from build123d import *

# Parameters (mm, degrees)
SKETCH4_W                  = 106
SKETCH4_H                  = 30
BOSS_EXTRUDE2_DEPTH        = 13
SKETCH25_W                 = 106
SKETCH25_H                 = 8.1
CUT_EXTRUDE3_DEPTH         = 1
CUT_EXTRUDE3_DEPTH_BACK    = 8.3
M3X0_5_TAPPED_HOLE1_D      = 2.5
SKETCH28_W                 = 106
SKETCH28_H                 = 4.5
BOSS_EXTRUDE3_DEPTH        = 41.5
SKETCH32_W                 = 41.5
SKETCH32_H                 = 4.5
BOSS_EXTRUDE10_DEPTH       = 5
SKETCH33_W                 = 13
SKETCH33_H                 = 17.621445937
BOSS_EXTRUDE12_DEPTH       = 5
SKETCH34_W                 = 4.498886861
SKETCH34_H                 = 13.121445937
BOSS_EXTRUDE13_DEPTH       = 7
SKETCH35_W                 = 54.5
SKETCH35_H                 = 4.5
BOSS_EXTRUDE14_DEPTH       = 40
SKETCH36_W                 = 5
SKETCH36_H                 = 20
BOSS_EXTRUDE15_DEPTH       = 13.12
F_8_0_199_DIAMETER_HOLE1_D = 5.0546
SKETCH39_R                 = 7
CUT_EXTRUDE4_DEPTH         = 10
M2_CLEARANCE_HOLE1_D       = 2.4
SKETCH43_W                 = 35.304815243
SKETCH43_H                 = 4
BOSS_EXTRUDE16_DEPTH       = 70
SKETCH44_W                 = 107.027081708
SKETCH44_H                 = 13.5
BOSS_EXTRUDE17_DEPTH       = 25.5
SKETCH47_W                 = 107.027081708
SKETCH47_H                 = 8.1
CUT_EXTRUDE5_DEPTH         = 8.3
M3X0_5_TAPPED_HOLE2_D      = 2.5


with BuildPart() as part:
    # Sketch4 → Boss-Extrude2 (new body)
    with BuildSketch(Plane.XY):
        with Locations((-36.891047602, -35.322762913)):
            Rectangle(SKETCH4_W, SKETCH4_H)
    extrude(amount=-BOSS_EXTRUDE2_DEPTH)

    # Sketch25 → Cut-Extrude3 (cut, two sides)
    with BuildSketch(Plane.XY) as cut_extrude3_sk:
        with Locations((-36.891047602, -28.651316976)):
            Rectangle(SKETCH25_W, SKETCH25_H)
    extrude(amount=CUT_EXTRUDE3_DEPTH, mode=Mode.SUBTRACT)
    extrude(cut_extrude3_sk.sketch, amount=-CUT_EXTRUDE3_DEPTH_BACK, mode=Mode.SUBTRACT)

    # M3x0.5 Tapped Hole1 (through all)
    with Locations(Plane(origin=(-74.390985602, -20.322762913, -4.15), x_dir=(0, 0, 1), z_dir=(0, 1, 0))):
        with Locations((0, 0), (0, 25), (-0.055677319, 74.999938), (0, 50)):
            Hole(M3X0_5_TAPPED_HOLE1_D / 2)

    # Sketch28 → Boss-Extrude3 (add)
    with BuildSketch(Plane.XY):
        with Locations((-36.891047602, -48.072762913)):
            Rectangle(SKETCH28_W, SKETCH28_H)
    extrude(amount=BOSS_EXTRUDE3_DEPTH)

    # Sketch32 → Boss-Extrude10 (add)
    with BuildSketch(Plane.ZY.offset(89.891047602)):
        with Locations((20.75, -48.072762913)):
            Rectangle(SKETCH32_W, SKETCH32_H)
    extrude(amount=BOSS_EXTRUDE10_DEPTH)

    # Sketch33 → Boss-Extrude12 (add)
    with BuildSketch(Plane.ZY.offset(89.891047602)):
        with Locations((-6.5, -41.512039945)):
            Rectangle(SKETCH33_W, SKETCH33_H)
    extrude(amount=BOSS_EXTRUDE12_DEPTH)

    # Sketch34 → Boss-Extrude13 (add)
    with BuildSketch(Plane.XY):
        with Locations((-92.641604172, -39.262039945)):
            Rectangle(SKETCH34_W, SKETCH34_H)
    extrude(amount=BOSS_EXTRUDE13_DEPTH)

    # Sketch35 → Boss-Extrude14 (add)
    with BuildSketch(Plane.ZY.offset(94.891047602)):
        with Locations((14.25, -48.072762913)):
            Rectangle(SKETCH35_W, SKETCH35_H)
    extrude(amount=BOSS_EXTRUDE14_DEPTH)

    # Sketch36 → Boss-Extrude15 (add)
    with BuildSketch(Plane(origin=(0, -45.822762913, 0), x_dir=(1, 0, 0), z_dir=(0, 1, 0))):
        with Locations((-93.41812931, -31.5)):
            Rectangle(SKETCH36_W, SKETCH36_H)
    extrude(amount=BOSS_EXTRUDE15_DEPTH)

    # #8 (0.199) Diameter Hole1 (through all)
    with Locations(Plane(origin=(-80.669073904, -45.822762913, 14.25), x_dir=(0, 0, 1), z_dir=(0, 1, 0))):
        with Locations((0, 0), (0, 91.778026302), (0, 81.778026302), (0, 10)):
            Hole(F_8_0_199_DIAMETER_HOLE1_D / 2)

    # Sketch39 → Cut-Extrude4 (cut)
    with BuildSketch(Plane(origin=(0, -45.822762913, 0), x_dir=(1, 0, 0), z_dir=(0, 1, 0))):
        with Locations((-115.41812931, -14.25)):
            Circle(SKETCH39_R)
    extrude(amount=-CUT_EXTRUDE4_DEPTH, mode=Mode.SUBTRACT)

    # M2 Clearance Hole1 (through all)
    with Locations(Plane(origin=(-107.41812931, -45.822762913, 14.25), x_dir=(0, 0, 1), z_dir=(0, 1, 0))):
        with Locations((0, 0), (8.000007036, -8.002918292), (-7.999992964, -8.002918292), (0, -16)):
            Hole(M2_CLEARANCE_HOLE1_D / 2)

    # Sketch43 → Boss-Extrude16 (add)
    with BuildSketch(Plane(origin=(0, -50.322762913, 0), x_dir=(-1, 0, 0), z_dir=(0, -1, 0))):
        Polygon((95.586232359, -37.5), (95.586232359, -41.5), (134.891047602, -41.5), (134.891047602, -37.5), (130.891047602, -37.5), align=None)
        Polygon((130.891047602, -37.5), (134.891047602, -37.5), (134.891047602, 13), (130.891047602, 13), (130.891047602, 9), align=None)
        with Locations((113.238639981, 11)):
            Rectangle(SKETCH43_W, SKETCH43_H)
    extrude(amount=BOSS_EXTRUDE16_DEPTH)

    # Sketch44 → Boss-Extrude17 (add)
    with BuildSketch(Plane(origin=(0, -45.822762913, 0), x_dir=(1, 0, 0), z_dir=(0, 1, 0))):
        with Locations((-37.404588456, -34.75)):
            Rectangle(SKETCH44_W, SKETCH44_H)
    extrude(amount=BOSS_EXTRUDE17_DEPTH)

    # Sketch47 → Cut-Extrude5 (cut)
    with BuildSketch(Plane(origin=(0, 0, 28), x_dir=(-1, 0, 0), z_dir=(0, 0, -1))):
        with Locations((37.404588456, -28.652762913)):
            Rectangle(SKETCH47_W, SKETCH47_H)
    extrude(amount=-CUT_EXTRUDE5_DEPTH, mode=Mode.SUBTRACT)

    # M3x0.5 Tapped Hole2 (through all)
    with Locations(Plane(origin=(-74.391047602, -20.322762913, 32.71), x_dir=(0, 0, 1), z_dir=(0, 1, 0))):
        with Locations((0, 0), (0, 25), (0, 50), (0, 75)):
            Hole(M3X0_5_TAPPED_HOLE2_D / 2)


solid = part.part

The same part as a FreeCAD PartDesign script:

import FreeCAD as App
import Part
import Sketcher

doc = App.newDocument("Part")
body = doc.addObject("PartDesign::Body", "Body")

sketch1 = body.newObject("Sketcher::SketchObject", "Sketch")
sketch1.AttachmentSupport = (doc.getObject("XY_Plane"), [""])
sketch1.MapMode = "FlatFace"
sketch1.addGeometry([
    Part.LineSegment(App.Vector(-90, -20, 0), App.Vector(-90, -50, 0)),
    Part.LineSegment(App.Vector(-90, -50, 0), App.Vector(16, -50, 0)),
    Part.LineSegment(App.Vector(16, -50, 0), App.Vector(16, -20, 0)),
    Part.LineSegment(App.Vector(16, -20, 0), App.Vector(-90, -20, 0)),
], False)
sketch1.addConstraint([
    Sketcher.Constraint("Coincident", 0, 2, 1, 1),
    Sketcher.Constraint("Coincident", 1, 2, 2, 1),
    Sketcher.Constraint("Coincident", 2, 2, 3, 1),
    Sketcher.Constraint("Coincident", 3, 2, 0, 1),
    Sketcher.Constraint("Vertical", 0),
    Sketcher.Constraint("Horizontal", 1),
    Sketcher.Constraint("Vertical", 2),
    Sketcher.Constraint("Horizontal", 3),
    Sketcher.Constraint("DistanceX", 1, 1, 1, 2, 106.0),
    Sketcher.Constraint("DistanceY", 0, 2, 0, 1, 30.0),
    Sketcher.Constraint("DistanceX", 0, 2, -1, 1, 89.891048),
    Sketcher.Constraint("DistanceY", 0, 2, -1, 1, 50.322763),
])
pad1 = body.newObject("PartDesign::Pad", "Pad")
pad1.Profile = sketch1
pad1.Length = 13
pad1.Reversed = True

sketch2 = body.newObject("Sketcher::SketchObject", "Sketch001")
sketch2.AttachmentSupport = (doc.getObject("XY_Plane"), [""])
sketch2.MapMode = "FlatFace"
sketch2.addGeometry([
    Part.LineSegment(App.Vector(-90, -25, 0), App.Vector(-90, -33, 0)),
    Part.LineSegment(App.Vector(-90, -33, 0), App.Vector(16, -33, 0)),
    Part.LineSegment(App.Vector(16, -33, 0), App.Vector(16, -25, 0)),
    Part.LineSegment(App.Vector(16, -25, 0), App.Vector(-90, -25, 0)),
], False)
sketch2.addConstraint([
    Sketcher.Constraint("Coincident", 0, 2, 1, 1),
    Sketcher.Constraint("Coincident", 1, 2, 2, 1),
    Sketcher.Constraint("Coincident", 2, 2, 3, 1),
    Sketcher.Constraint("Coincident", 3, 2, 0, 1),
    Sketcher.Constraint("Vertical", 0),
    Sketcher.Constraint("Horizontal", 1),
    Sketcher.Constraint("Vertical", 2),
    Sketcher.Constraint("Horizontal", 3),
    Sketcher.Constraint("DistanceX", 1, 1, 1, 2, 106.0),
    Sketcher.Constraint("DistanceY", 0, 2, 0, 1, 8.1),
    Sketcher.Constraint("DistanceX", 0, 2, -1, 1, 89.891048),
    Sketcher.Constraint("DistanceY", 0, 2, -1, 1, 32.701317),
])
pocket1 = body.newObject("PartDesign::Pocket", "Pocket")
pocket1.Profile = sketch2
pocket1.Type = "TwoLengths"
pocket1.Length = 1
pocket1.Length2 = 8.3
pocket1.Reversed = True

sketch3 = body.newObject("Sketcher::SketchObject", "Sketch002")
sketch3.AttachmentSupport = (doc.getObject("XZ_Plane"), [""])
sketch3.MapMode = "FlatFace"
sketch3.AttachmentOffset = App.Placement(App.Vector(0, 0, 20.322763), App.Rotation())
sketch3.addGeometry([
    Part.Circle(App.Vector(-74.4, -4.2, 0), App.Vector(0, 0, 1), 1.2),
    Part.Circle(App.Vector(-49.4, -4.2, 0), App.Vector(0, 0, 1), 1.2),
    Part.Circle(App.Vector(0.6, -4.2, 0), App.Vector(0, 0, 1), 1.2),
    Part.Circle(App.Vector(-24.4, -4.2, 0), App.Vector(0, 0, 1), 1.2),
], False)
sketch3.addConstraint([
    Sketcher.Constraint("Equal", 0, 1),
    Sketcher.Constraint("Equal", 1, 2),
    Sketcher.Constraint("Equal", 2, 3),
    Sketcher.Constraint("Horizontal", 0, 3, 1, 3),
    Sketcher.Constraint("Horizontal", 1, 3, 3, 3),
    Sketcher.Constraint("Diameter", 0, 2.5),
    Sketcher.Constraint("DistanceX", 0, 3, 1, 3, 25.0),
    Sketcher.Constraint("DistanceX", 1, 3, 3, 3, 25.0),
    Sketcher.Constraint("DistanceY", 0, 3, -1, 1, 4.15),
    Sketcher.Constraint("DistanceX", 0, 3, 2, 3, 74.999938),
    Sketcher.Constraint("DistanceX", 0, 3, -1, 1, 74.390986),
    Sketcher.Constraint("DistanceY", 2, 3, -1, 1, 4.205677),
])
doc.recompute()
hole = body.newObject("PartDesign::Hole", "Hole")
hole.Profile = sketch3
hole.ThreadType = "None"
hole.Diameter = 2.5
hole.DepthType = "ThroughAll"
hole.Reversed = True

sketch4 = body.newObject("Sketcher::SketchObject", "Sketch003")
sketch4.AttachmentSupport = (doc.getObject("XY_Plane"), [""])
sketch4.MapMode = "FlatFace"
sketch4.addGeometry([
    Part.LineSegment(App.Vector(-89.9, -45.8, 0), App.Vector(-89.9, -50.3, 0)),
    Part.LineSegment(App.Vector(-89.9, -50.3, 0), App.Vector(16.1, -50.3, 0)),
    Part.LineSegment(App.Vector(16.1, -50.3, 0), App.Vector(16.1, -45.8, 0)),
    Part.LineSegment(App.Vector(16.1, -45.8, 0), App.Vector(-89.9, -45.8, 0)),
], False)
sketch4.addConstraint([
    Sketcher.Constraint("Coincident", 0, 2, 1, 1),
    Sketcher.Constraint("Coincident", 1, 2, 2, 1),
    Sketcher.Constraint("Coincident", 2, 2, 3, 1),
    Sketcher.Constraint("Coincident", 3, 2, 0, 1),
    Sketcher.Constraint("Vertical", 0),
    Sketcher.Constraint("Horizontal", 1),
    Sketcher.Constraint("Vertical", 2),
    Sketcher.Constraint("Horizontal", 3),
    Sketcher.Constraint("DistanceX", 1, 1, 1, 2, 106.0),
    Sketcher.Constraint("DistanceY", 0, 2, 0, 1, 4.5),
    Sketcher.Constraint("DistanceX", 0, 2, -1, 1, 89.891048),
    Sketcher.Constraint("DistanceY", 0, 2, -1, 1, 50.322763),
])
pad2 = body.newObject("PartDesign::Pad", "Pad001")
pad2.Profile = sketch4
pad2.Length = 41.5

sketch5 = body.newObject("Sketcher::SketchObject", "Sketch004")
sketch5.AttachmentSupport = (doc.getObject("YZ_Plane"), [""])
sketch5.MapMode = "FlatFace"
sketch5.AttachmentOffset = App.Placement(App.Vector(0, 0, -89.891048), App.Rotation())
sketch5.addGeometry([
    Part.LineSegment(App.Vector(-45.8, 0, 0), App.Vector(-50.3, 0, 0)),
    Part.LineSegment(App.Vector(-50.3, 0, 0), App.Vector(-50.3, 41.5, 0)),
    Part.LineSegment(App.Vector(-50.3, 41.5, 0), App.Vector(-45.8, 41.5, 0)),
    Part.LineSegment(App.Vector(-45.8, 41.5, 0), App.Vector(-45.8, 0, 0)),
], False)
sketch5.addConstraint([
    Sketcher.Constraint("Coincident", 0, 2, 1, 1),
    Sketcher.Constraint("Coincident", 1, 2, 2, 1),
    Sketcher.Constraint("Coincident", 2, 2, 3, 1),
    Sketcher.Constraint("Coincident", 3, 2, 0, 1),
    Sketcher.Constraint("Horizontal", 0),
    Sketcher.Constraint("Vertical", 1),
    Sketcher.Constraint("Horizontal", 2),
    Sketcher.Constraint("Vertical", 3),
    Sketcher.Constraint("PointOnObject", 0, 2, -1),
    Sketcher.Constraint("DistanceX", 0, 2, 0, 1, 4.5),
    Sketcher.Constraint("DistanceY", 1, 1, 1, 2, 41.5),
    Sketcher.Constraint("DistanceX", 0, 2, -1, 1, 50.322763),
])
pad3 = body.newObject("PartDesign::Pad", "Pad002")
pad3.Profile = sketch5
pad3.Length = 5
pad3.Reversed = True

sketch6 = body.newObject("Sketcher::SketchObject", "Sketch005")
sketch6.AttachmentSupport = (doc.getObject("YZ_Plane"), [""])
sketch6.MapMode = "FlatFace"
sketch6.AttachmentOffset = App.Placement(App.Vector(0, 0, -89.891048), App.Rotation())
sketch6.addGeometry([
    Part.LineSegment(App.Vector(-33, -13, 0), App.Vector(-50, -13, 0)),
    Part.LineSegment(App.Vector(-50, -13, 0), App.Vector(-50, 0, 0)),
    Part.LineSegment(App.Vector(-50, 0, 0), App.Vector(-33, 0, 0)),
    Part.LineSegment(App.Vector(-33, 0, 0), App.Vector(-33, -13, 0)),
], False)
sketch6.addConstraint([
    Sketcher.Constraint("Coincident", 0, 2, 1, 1),
    Sketcher.Constraint("Coincident", 1, 2, 2, 1),
    Sketcher.Constraint("Coincident", 2, 2, 3, 1),
    Sketcher.Constraint("Coincident", 3, 2, 0, 1),
    Sketcher.Constraint("Horizontal", 0),
    Sketcher.Constraint("Vertical", 1),
    Sketcher.Constraint("Horizontal", 2),
    Sketcher.Constraint("Vertical", 3),
    Sketcher.Constraint("PointOnObject", 1, 2, -1),
    Sketcher.Constraint("DistanceY", 1, 1, 1, 2, 13.0),
    Sketcher.Constraint("DistanceX", 0, 2, 0, 1, 17.621446),
    Sketcher.Constraint("DistanceX", 0, 2, -1, 1, 50.322763),
])
pad4 = body.newObject("PartDesign::Pad", "Pad003")
pad4.Profile = sketch6
pad4.Length = 5
pad4.Reversed = True

sketch7 = body.newObject("Sketcher::SketchObject", "Sketch006")
sketch7.AttachmentSupport = (doc.getObject("XY_Plane"), [""])
sketch7.MapMode = "FlatFace"
sketch7.addGeometry([
    Part.LineSegment(App.Vector(-94.9, -32.7, 0), App.Vector(-94.9, -45.8, 0)),
    Part.LineSegment(App.Vector(-94.9, -45.8, 0), App.Vector(-90.4, -45.8, 0)),
    Part.LineSegment(App.Vector(-90.4, -45.8, 0), App.Vector(-90.4, -32.7, 0)),
    Part.LineSegment(App.Vector(-90.4, -32.7, 0), App.Vector(-94.9, -32.7, 0)),
], False)
sketch7.addConstraint([
    Sketcher.Constraint("Coincident", 0, 2, 1, 1),
    Sketcher.Constraint("Coincident", 1, 2, 2, 1),
    Sketcher.Constraint("Coincident", 2, 2, 3, 1),
    Sketcher.Constraint("Coincident", 3, 2, 0, 1),
    Sketcher.Constraint("Vertical", 0),
    Sketcher.Constraint("Horizontal", 1),
    Sketcher.Constraint("Vertical", 2),
    Sketcher.Constraint("Horizontal", 3),
    Sketcher.Constraint("DistanceX", 1, 1, 1, 2, 4.498887),
    Sketcher.Constraint("DistanceY", 0, 2, 0, 1, 13.121446),
    Sketcher.Constraint("DistanceX", 1, 2, -1, 1, 90.392161),
    Sketcher.Constraint("DistanceY", 0, 2, -1, 1, 45.822763),
])
pad5 = body.newObject("PartDesign::Pad", "Pad004")
pad5.Profile = sketch7
pad5.Length = 7

sketch8 = body.newObject("Sketcher::SketchObject", "Sketch007")
sketch8.AttachmentSupport = (doc.getObject("YZ_Plane"), [""])
sketch8.MapMode = "FlatFace"
sketch8.AttachmentOffset = App.Placement(App.Vector(0, 0, -94.891048), App.Rotation())
sketch8.addGeometry([
    Part.LineSegment(App.Vector(-45.8, -13, 0), App.Vector(-50.3, -13, 0)),
    Part.LineSegment(App.Vector(-50.3, -13, 0), App.Vector(-50.3, 41.5, 0)),
    Part.LineSegment(App.Vector(-50.3, 41.5, 0), App.Vector(-45.8, 41.5, 0)),
    Part.LineSegment(App.Vector(-45.8, 41.5, 0), App.Vector(-45.8, -13, 0)),
], False)
sketch8.addConstraint([
    Sketcher.Constraint("Coincident", 0, 2, 1, 1),
    Sketcher.Constraint("Coincident", 1, 2, 2, 1),
    Sketcher.Constraint("Coincident", 2, 2, 3, 1),
    Sketcher.Constraint("Coincident", 3, 2, 0, 1),
    Sketcher.Constraint("Horizontal", 0),
    Sketcher.Constraint("Vertical", 1),
    Sketcher.Constraint("Horizontal", 2),
    Sketcher.Constraint("Vertical", 3),
    Sketcher.Constraint("DistanceX", 0, 2, 0, 1, 4.5),
    Sketcher.Constraint("DistanceY", 1, 1, 1, 2, 54.5),
    Sketcher.Constraint("DistanceY", 0, 2, -1, 1, 13.0),
    Sketcher.Constraint("DistanceX", 0, 2, -1, 1, 50.322763),
])
pad6 = body.newObject("PartDesign::Pad", "Pad005")
pad6.Profile = sketch8
pad6.Length = 40
pad6.Reversed = True

sketch9 = body.newObject("Sketcher::SketchObject", "Sketch008")
sketch9.AttachmentSupport = (doc.getObject("XZ_Plane"), [""])
sketch9.MapMode = "FlatFace"
sketch9.AttachmentOffset = App.Placement(App.Vector(0, 0, 45.822763), App.Rotation())
sketch9.addGeometry([
    Part.LineSegment(App.Vector(-96, 22, 0), App.Vector(-96, 42, 0)),
    Part.LineSegment(App.Vector(-96, 42, 0), App.Vector(-91, 42, 0)),
    Part.LineSegment(App.Vector(-91, 42, 0), App.Vector(-91, 22, 0)),
    Part.LineSegment(App.Vector(-91, 22, 0), App.Vector(-96, 22, 0)),
], False)
sketch9.addConstraint([
    Sketcher.Constraint("Coincident", 0, 2, 1, 1),
    Sketcher.Constraint("Coincident", 1, 2, 2, 1),
    Sketcher.Constraint("Coincident", 2, 2, 3, 1),
    Sketcher.Constraint("Coincident", 3, 2, 0, 1),
    Sketcher.Constraint("Vertical", 0),
    Sketcher.Constraint("Horizontal", 1),
    Sketcher.Constraint("Vertical", 2),
    Sketcher.Constraint("Horizontal", 3),
    Sketcher.Constraint("DistanceX", 1, 1, 1, 2, 5.0),
    Sketcher.Constraint("DistanceY", 0, 1, 0, 2, 20.0),
    Sketcher.Constraint("DistanceY", -1, 1, 0, 2, 41.5),
    Sketcher.Constraint("DistanceX", 0, 2, -1, 1, 95.918129),
])
pad7 = body.newObject("PartDesign::Pad", "Pad006")
pad7.Profile = sketch9
pad7.Length = 13.12
pad7.Reversed = True

sketch10 = body.newObject("Sketcher::SketchObject", "Sketch009")
sketch10.AttachmentSupport = (doc.getObject("XZ_Plane"), [""])
sketch10.MapMode = "FlatFace"
sketch10.AttachmentOffset = App.Placement(App.Vector(0, 0, 45.822763), App.Rotation())
sketch10.addGeometry([
    Part.Circle(App.Vector(-80.7, 14.2, 0), App.Vector(0, 0, 1), 2.5),
    Part.Circle(App.Vector(11.1, 14.2, 0), App.Vector(0, 0, 1), 2.5),
    Part.Circle(App.Vector(1.1, 14.2, 0), App.Vector(0, 0, 1), 2.5),
    Part.Circle(App.Vector(-70.7, 14.2, 0), App.Vector(0, 0, 1), 2.5),
], False)
sketch10.addConstraint([
    Sketcher.Constraint("Equal", 0, 1),
    Sketcher.Constraint("Equal", 1, 2),
    Sketcher.Constraint("Equal", 2, 3),
    Sketcher.Constraint("Horizontal", 0, 3, 1, 3),
    Sketcher.Constraint("Horizontal", 1, 3, 2, 3),
    Sketcher.Constraint("Horizontal", 2, 3, 3, 3),
    Sketcher.Constraint("DistanceX", 2, 3, 1, 3, 10.0),
    Sketcher.Constraint("DistanceX", 0, 3, 3, 3, 10.0),
    Sketcher.Constraint("Diameter", 0, 5.0546),
    Sketcher.Constraint("DistanceY", -1, 1, 0, 3, 14.25),
    Sketcher.Constraint("DistanceX", 0, 3, -1, 1, 80.669074),
    Sketcher.Constraint("DistanceX", -1, 1, 1, 3, 11.108952),
])
doc.recompute()
hole2 = body.newObject("PartDesign::Hole", "Hole001")
hole2.Profile = sketch10
hole2.ThreadType = "None"
hole2.Diameter = 5.0546
hole2.DepthType = "ThroughAll"
hole2.Reversed = True

sketch11 = body.newObject("Sketcher::SketchObject", "Sketch010")
sketch11.AttachmentSupport = (doc.getObject("XZ_Plane"), [""])
sketch11.MapMode = "FlatFace"
sketch11.AttachmentOffset = App.Placement(App.Vector(0, 0, 45.822763), App.Rotation())
sketch11.addGeometry(Part.Circle(App.Vector(-115, 14, 0), App.Vector(0, 0, 1), 7), False)
sketch11.addConstraint([
    Sketcher.Constraint("Diameter", 0, 14.0),
    Sketcher.Constraint("DistanceY", -1, 1, 0, 3, 14.25),
    Sketcher.Constraint("DistanceX", 0, 3, -1, 1, 115.418129),
])
pocket2 = body.newObject("PartDesign::Pocket", "Pocket001")
pocket2.Profile = sketch11
pocket2.Length = 10
pocket2.Reversed = True

sketch12 = body.newObject("Sketcher::SketchObject", "Sketch011")
sketch12.AttachmentSupport = (doc.getObject("XZ_Plane"), [""])
sketch12.MapMode = "FlatFace"
sketch12.AttachmentOffset = App.Placement(App.Vector(0, 0, 45.822763), App.Rotation())
sketch12.addGeometry([
    Part.Circle(App.Vector(-107.4, 14.2, 0), App.Vector(0, 0, 1), 1.2),
    Part.Circle(App.Vector(-115.4, 22.3, 0), App.Vector(0, 0, 1), 1.2),
    Part.Circle(App.Vector(-115.4, 6.3, 0), App.Vector(0, 0, 1), 1.2),
    Part.Circle(App.Vector(-123.4, 14.2, 0), App.Vector(0, 0, 1), 1.2),
], False)
sketch12.addConstraint([
    Sketcher.Constraint("Equal", 0, 1),
    Sketcher.Constraint("Equal", 1, 2),
    Sketcher.Constraint("Equal", 2, 3),
    Sketcher.Constraint("Horizontal", 0, 3, 3, 3),
    Sketcher.Constraint("Vertical", 1, 3, 2, 3),
    Sketcher.Constraint("Diameter", 0, 2.4),
    Sketcher.Constraint("DistanceY", 2, 3, 1, 3, 16.0),
    Sketcher.Constraint("DistanceX", 3, 3, 0, 3, 16.0),
    Sketcher.Constraint("DistanceY", -1, 1, 0, 3, 14.25),
    Sketcher.Constraint("DistanceX", 0, 3, -1, 1, 107.418129),
    Sketcher.Constraint("DistanceX", 1, 3, 0, 3, 8.002918),
    Sketcher.Constraint("DistanceY", -1, 1, 1, 3, 22.250007),
])
doc.recompute()
hole3 = body.newObject("PartDesign::Hole", "Hole002")
hole3.Profile = sketch12
hole3.ThreadType = "None"
hole3.Diameter = 2.4
hole3.DepthType = "ThroughAll"
hole3.Reversed = True

sketch13 = body.newObject("Sketcher::SketchObject", "Sketch012")
sketch13.AttachmentSupport = (doc.getObject("XZ_Plane"), [""])
sketch13.MapMode = "FlatFace"
sketch13.AttachmentOffset = App.Placement(App.Vector(0, 0, 50.322763), App.Rotation())
sketch13.addGeometry([
    Part.LineSegment(App.Vector(-95.6, 37.5, 0), App.Vector(-95.6, 41.5, 0)),
    Part.LineSegment(App.Vector(-95.6, 41.5, 0), App.Vector(-134.9, 41.5, 0)),
    Part.LineSegment(App.Vector(-134.9, 41.5, 0), App.Vector(-134.9, -13, 0)),
    Part.LineSegment(App.Vector(-134.9, -13, 0), App.Vector(-95.6, -13, 0)),
    Part.LineSegment(App.Vector(-95.6, -13, 0), App.Vector(-95.6, -9, 0)),
    Part.LineSegment(App.Vector(-95.6, -9, 0), App.Vector(-130.9, -9, 0)),
    Part.LineSegment(App.Vector(-130.9, -9, 0), App.Vector(-130.9, 37.5, 0)),
    Part.LineSegment(App.Vector(-130.9, 37.5, 0), App.Vector(-95.6, 37.5, 0)),
], False)
sketch13.addConstraint([
    Sketcher.Constraint("Coincident", 0, 2, 1, 1),
    Sketcher.Constraint("Coincident", 1, 2, 2, 1),
    Sketcher.Constraint("Coincident", 2, 2, 3, 1),
    Sketcher.Constraint("Coincident", 3, 2, 4, 1),
    Sketcher.Constraint("Coincident", 4, 2, 5, 1),
    Sketcher.Constraint("Coincident", 5, 2, 6, 1),
    Sketcher.Constraint("Coincident", 6, 2, 7, 1),
    Sketcher.Constraint("Coincident", 7, 2, 0, 1),
    Sketcher.Constraint("Vertical", 0),
    Sketcher.Constraint("Horizontal", 1),
    Sketcher.Constraint("Vertical", 2),
    Sketcher.Constraint("Horizontal", 3),
    Sketcher.Constraint("Vertical", 4),
    Sketcher.Constraint("Horizontal", 5),
    Sketcher.Constraint("Vertical", 6),
    Sketcher.Constraint("Horizontal", 7),
    Sketcher.Constraint("Vertical", 0, 2, 3, 2),
    Sketcher.Constraint("Equal", 0, 4),
    Sketcher.Constraint("DistanceY", 0, 1, 0, 2, 4.0),
    Sketcher.Constraint("DistanceY", 2, 2, 2, 1, 54.5),
    Sketcher.Constraint("DistanceY", 2, 2, -1, 1, 13.0),
    Sketcher.Constraint("DistanceX", 2, 2, 5, 2, 4.0),
    Sketcher.Constraint("DistanceX", 1, 2, 1, 1, 39.304815),
    Sketcher.Constraint("DistanceX", 0, 2, -1, 1, 95.586232),
])
pad8 = body.newObject("PartDesign::Pad", "Pad007")
pad8.Profile = sketch13
pad8.Length = 70

sketch14 = body.newObject("Sketcher::SketchObject", "Sketch013")
sketch14.AttachmentSupport = (doc.getObject("XZ_Plane"), [""])
sketch14.MapMode = "FlatFace"
sketch14.AttachmentOffset = App.Placement(App.Vector(0, 0, 45.822763), App.Rotation())
sketch14.addGeometry([
    Part.LineSegment(App.Vector(-91, 28, 0), App.Vector(-91, 42, 0)),
    Part.LineSegment(App.Vector(-91, 42, 0), App.Vector(16, 42, 0)),
    Part.LineSegment(App.Vector(16, 42, 0), App.Vector(16, 28, 0)),
    Part.LineSegment(App.Vector(16, 28, 0), App.Vector(-91, 28, 0)),
], False)
sketch14.addConstraint([
    Sketcher.Constraint("Coincident", 0, 2, 1, 1),
    Sketcher.Constraint("Coincident", 1, 2, 2, 1),
    Sketcher.Constraint("Coincident", 2, 2, 3, 1),
    Sketcher.Constraint("Coincident", 3, 2, 0, 1),
    Sketcher.Constraint("Vertical", 0),
    Sketcher.Constraint("Horizontal", 1),
    Sketcher.Constraint("Vertical", 2),
    Sketcher.Constraint("Horizontal", 3),
    Sketcher.Constraint("DistanceY", 0, 1, 0, 2, 13.5),
    Sketcher.Constraint("DistanceY", -1, 1, 2, 2, 28.0),
    Sketcher.Constraint("DistanceX", 1, 1, 1, 2, 107.027082),
    Sketcher.Constraint("DistanceX", 0, 2, -1, 1, 90.918129),
])
pad9 = body.newObject("PartDesign::Pad", "Pad008")
pad9.Profile = sketch14
pad9.Length = 25.5
pad9.Reversed = True

sketch15 = body.newObject("Sketcher::SketchObject", "Sketch014")
sketch15.AttachmentSupport = (doc.getObject("XY_Plane"), [""])
sketch15.MapMode = "FlatFace"
sketch15.AttachmentOffset = App.Placement(App.Vector(0, 0, 28), App.Rotation())
sketch15.addGeometry([
    Part.LineSegment(App.Vector(16, -25, 0), App.Vector(16, -33, 0)),
    Part.LineSegment(App.Vector(16, -33, 0), App.Vector(-91, -33, 0)),
    Part.LineSegment(App.Vector(-91, -33, 0), App.Vector(-91, -25, 0)),
    Part.LineSegment(App.Vector(-91, -25, 0), App.Vector(16, -25, 0)),
], False)
sketch15.addConstraint([
    Sketcher.Constraint("Coincident", 0, 2, 1, 1),
    Sketcher.Constraint("Coincident", 1, 2, 2, 1),
    Sketcher.Constraint("Coincident", 2, 2, 3, 1),
    Sketcher.Constraint("Coincident", 3, 2, 0, 1),
    Sketcher.Constraint("Vertical", 0),
    Sketcher.Constraint("Horizontal", 1),
    Sketcher.Constraint("Vertical", 2),
    Sketcher.Constraint("Horizontal", 3),
    Sketcher.Constraint("DistanceY", 0, 2, 0, 1, 8.1),
    Sketcher.Constraint("DistanceX", 1, 2, 1, 1, 107.027082),
    Sketcher.Constraint("DistanceX", 1, 2, -1, 1, 90.918129),
    Sketcher.Constraint("DistanceY", 0, 2, -1, 1, 32.702763),
])
pocket3 = body.newObject("PartDesign::Pocket", "Pocket002")
pocket3.Profile = sketch15
pocket3.Length = 8.3
pocket3.Reversed = True

sketch16 = body.newObject("Sketcher::SketchObject", "Sketch015")
sketch16.AttachmentSupport = (doc.getObject("XZ_Plane"), [""])
sketch16.MapMode = "FlatFace"
sketch16.AttachmentOffset = App.Placement(App.Vector(0, 0, 20.322763), App.Rotation())
sketch16.addGeometry([
    Part.Circle(App.Vector(-74.4, 32.7, 0), App.Vector(0, 0, 1), 1.2),
    Part.Circle(App.Vector(-49.4, 32.7, 0), App.Vector(0, 0, 1), 1.2),
    Part.Circle(App.Vector(-24.4, 32.7, 0), App.Vector(0, 0, 1), 1.2),
    Part.Circle(App.Vector(0.6, 32.7, 0), App.Vector(0, 0, 1), 1.2),
], False)
sketch16.addConstraint([
    Sketcher.Constraint("Equal", 0, 1),
    Sketcher.Constraint("Equal", 1, 2),
    Sketcher.Constraint("Equal", 2, 3),
    Sketcher.Constraint("Horizontal", 0, 3, 1, 3),
    Sketcher.Constraint("Horizontal", 1, 3, 2, 3),
    Sketcher.Constraint("Horizontal", 2, 3, 3, 3),
    Sketcher.Constraint("Diameter", 0, 2.5),
    Sketcher.Constraint("DistanceX", 0, 3, 1, 3, 25.0),
    Sketcher.Constraint("DistanceX", 1, 3, 2, 3, 25.0),
    Sketcher.Constraint("DistanceX", 2, 3, 3, 3, 25.0),
    Sketcher.Constraint("DistanceY", -1, 1, 0, 3, 32.71),
    Sketcher.Constraint("DistanceX", 0, 3, -1, 1, 74.391048),
])
doc.recompute()
hole4 = body.newObject("PartDesign::Hole", "Hole003")
hole4.Profile = sketch16
hole4.ThreadType = "None"
hole4.Diameter = 2.5
hole4.DepthType = "ThroughAll"
hole4.Reversed = True

doc.recompute()
